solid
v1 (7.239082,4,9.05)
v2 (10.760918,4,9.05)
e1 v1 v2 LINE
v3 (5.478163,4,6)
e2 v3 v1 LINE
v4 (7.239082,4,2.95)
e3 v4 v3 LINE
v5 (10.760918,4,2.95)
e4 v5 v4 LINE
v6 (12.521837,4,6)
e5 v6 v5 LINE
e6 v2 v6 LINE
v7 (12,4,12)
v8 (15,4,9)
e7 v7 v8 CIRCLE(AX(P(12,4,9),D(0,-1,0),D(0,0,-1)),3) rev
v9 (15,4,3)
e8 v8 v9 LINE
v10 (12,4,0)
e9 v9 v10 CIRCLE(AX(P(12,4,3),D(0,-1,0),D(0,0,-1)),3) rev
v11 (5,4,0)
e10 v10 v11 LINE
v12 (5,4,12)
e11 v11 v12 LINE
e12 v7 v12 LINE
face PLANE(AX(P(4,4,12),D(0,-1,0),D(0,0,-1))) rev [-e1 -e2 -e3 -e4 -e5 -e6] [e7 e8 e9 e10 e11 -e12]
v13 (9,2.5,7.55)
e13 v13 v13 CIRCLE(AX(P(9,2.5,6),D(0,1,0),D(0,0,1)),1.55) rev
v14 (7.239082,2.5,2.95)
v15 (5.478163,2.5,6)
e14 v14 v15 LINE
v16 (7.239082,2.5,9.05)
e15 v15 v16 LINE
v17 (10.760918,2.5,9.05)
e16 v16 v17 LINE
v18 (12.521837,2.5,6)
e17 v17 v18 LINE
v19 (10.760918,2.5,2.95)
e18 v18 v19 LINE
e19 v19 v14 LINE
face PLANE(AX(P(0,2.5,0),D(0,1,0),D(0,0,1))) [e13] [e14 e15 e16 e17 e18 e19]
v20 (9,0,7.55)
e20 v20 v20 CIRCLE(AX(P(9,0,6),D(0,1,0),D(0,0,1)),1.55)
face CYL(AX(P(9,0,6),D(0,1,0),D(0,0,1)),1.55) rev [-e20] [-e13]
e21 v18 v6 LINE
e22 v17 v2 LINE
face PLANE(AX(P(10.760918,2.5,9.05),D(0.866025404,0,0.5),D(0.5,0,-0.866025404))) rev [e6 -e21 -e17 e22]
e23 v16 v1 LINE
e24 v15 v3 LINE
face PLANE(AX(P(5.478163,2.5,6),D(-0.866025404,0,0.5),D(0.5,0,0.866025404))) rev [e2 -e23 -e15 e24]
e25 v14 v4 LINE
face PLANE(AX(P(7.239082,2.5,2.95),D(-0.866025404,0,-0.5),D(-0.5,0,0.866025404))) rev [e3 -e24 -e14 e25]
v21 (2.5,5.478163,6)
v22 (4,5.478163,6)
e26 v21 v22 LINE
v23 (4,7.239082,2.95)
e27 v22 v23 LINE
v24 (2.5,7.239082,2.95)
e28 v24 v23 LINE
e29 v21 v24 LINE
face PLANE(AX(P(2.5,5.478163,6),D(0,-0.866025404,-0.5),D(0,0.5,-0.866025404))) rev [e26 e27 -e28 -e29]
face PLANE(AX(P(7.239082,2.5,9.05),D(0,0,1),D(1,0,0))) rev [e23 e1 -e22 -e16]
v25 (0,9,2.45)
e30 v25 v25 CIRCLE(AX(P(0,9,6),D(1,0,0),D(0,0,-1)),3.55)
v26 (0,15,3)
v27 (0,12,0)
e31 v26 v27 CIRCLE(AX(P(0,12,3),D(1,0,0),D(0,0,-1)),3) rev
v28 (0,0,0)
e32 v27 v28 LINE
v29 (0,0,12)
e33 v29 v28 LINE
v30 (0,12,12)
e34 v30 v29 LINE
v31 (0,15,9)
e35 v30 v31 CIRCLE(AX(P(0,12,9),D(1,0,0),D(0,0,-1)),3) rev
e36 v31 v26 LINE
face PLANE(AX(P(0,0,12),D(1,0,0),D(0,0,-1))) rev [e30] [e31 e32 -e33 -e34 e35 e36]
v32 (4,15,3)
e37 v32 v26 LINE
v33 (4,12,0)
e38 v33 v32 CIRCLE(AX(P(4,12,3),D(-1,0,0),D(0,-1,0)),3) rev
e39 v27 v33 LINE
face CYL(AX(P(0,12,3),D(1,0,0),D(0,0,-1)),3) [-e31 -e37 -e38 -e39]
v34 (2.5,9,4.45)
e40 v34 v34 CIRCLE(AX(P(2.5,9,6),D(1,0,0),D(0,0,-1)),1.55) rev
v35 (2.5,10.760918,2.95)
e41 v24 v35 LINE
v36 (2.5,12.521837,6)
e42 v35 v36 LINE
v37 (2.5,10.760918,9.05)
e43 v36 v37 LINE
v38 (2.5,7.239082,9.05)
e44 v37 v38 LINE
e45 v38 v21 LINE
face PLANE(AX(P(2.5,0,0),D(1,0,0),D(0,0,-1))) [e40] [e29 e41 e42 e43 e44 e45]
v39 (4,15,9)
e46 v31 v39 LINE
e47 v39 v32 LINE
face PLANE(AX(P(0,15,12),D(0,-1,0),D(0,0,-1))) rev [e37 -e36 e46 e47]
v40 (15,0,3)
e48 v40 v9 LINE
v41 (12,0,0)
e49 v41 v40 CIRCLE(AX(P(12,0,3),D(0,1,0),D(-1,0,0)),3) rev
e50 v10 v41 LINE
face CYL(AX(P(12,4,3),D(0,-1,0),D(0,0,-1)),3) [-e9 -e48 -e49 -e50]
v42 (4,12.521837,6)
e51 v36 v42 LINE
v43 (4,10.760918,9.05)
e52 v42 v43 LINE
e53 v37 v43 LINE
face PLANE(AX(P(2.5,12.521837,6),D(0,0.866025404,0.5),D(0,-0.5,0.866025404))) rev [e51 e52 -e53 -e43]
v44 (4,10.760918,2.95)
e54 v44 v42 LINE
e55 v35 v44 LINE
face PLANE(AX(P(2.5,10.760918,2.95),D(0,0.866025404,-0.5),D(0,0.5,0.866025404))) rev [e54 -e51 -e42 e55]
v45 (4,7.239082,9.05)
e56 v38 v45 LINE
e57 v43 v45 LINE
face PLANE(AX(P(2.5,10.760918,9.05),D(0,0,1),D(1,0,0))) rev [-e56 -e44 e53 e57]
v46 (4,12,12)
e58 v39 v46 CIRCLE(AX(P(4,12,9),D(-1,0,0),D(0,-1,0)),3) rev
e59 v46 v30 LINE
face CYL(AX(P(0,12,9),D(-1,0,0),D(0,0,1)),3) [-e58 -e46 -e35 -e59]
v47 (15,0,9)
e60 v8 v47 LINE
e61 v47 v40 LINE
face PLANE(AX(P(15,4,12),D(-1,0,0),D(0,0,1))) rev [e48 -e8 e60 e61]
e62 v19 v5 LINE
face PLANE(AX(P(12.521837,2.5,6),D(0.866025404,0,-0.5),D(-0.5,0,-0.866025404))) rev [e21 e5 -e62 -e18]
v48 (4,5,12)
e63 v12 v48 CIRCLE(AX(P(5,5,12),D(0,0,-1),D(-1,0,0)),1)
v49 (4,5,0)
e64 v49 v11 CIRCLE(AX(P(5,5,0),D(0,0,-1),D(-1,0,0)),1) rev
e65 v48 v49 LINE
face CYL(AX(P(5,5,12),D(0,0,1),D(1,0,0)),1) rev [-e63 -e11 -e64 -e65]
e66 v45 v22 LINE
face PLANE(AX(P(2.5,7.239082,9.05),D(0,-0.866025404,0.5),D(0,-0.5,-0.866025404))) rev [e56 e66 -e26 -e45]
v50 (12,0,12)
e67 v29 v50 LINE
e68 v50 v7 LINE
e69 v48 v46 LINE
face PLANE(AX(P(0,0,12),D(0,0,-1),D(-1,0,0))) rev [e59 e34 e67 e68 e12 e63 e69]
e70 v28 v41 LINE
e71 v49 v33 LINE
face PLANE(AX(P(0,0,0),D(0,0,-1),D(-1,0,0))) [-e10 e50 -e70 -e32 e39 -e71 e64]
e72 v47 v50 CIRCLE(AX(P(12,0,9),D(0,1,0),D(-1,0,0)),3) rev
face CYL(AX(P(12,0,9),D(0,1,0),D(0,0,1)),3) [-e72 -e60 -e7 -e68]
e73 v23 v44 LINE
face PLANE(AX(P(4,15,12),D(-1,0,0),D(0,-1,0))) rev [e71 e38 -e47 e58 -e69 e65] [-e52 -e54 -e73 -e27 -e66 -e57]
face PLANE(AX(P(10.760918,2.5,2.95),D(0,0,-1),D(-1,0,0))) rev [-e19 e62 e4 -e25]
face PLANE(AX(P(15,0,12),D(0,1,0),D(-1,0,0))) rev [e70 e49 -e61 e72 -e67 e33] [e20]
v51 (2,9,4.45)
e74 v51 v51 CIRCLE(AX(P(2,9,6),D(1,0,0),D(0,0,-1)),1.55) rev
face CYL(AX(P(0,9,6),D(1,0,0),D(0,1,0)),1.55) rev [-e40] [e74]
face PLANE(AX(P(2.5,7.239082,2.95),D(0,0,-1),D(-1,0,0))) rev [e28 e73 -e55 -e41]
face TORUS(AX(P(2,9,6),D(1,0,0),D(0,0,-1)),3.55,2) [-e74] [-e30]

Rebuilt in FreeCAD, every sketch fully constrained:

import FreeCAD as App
import Part
import Sketcher
from FreeCAD import Vector
Q = App.Units.Quantity


def edges_at(feature, points):
    """Names of the edges that pass closest to the given points."""
    edges = feature.Shape.Edges
    near = lambda p: min(range(len(edges)), key=lambda i: edges[i].distToShape(Part.Vertex(*p))[0])
    return sorted({f"Edge{near(p) + 1}" for p in points})


def add_polygon(sketch, points):
    """Adds a closed chain of lines whose ends are joined by coincident constraints."""
    first, n = sketch.GeometryCount, len(points)
    for a, b in zip(points, points[1:] + points[:1]):
        sketch.addGeometry(Part.LineSegment(App.Vector(*a, 0), App.Vector(*b, 0)), False)
    for i in range(n):
        sketch.addConstraint(Sketcher.Constraint("Coincident", first + i, 2, first + (i + 1) % n, 1))

doc = App.newDocument("Part")
params = doc.addObject("Spreadsheet::Sheet", "Params")
for row, (alias, value) in enumerate([
    ("sketch1_width", "15 mm"),
    ("sketch1_width2", "11 mm"),
    ("pad1_length", "12 mm"),
    ("sketch2_diameter", "3.1 mm"),
    ("pocket2_length", "1.5 mm"),
    ("sketch4_diameter", "3.1 mm"),
    ("pocket4_length", "1.5 mm"),
    ("fillet_radius", "2 mm"),
    ("fillet2_radius", "1 mm"),
    ("fillet3_radius", "3 mm"),
], start=1):
    params.set(f"A{row}", alias)
    params.set(f"B{row}", "=" + value)
    params.setAlias(f"B{row}", alias)

body = doc.addObject("PartDesign::Body", "Body")

sketch1 = body.newObject("Sketcher::SketchObject", "Sketch")
sketch1.AttachmentSupport = (doc.getObject("XY_Plane"), [""])
sketch1.MapMode = "FlatFace"
add_polygon(sketch1, [(0, 15), (0, 0), (15, 0), (15, 4), (4, 4), (4, 15)])
sketch1.addConstraint([
    Sketcher.Constraint("Vertical", 0),
    Sketcher.Constraint("Horizontal", 1),
    Sketcher.Constraint("Vertical", 2),
    Sketcher.Constraint("Horizontal", 3),
    Sketcher.Constraint("Vertical", 4),
    Sketcher.Constraint("Horizontal", 5),
    Sketcher.Constraint("Coincident", 0, 2, -1, 1),
    Sketcher.Constraint("Equal", 1, 0),
    Sketcher.Constraint("Equal", 5, 2),
    Sketcher.Constraint("DistanceX", 1, 1, 1, 2, 15.0),
    Sketcher.Constraint("DistanceX", 3, 2, 3, 1, 11.0),
])
sketch1.setExpression("Constraints[15]", "Params.sketch1_width")
sketch1.setExpression("Constraints[16]", "Params.sketch1_width2")
pad1 = body.newObject("PartDesign::Pad", "Pad")
pad1.Profile = sketch1
pad1.setExpression("Length", "Params.pad1_length")

sketch2 = body.newObject("Sketcher::SketchObject", "Sketch001")
sketch2.AttachmentSupport = (doc.getObject("XZ_Plane"), [""])
sketch2.MapMode = "FlatFace"
sketch2.AttachmentOffset = App.Placement(Vector(0, 0, -4), App.Rotation())
sketch2.addGeometry(Part.Circle(Vector(9, 6, 0), Vector(0, 0, 1), 1.6), False)
sketch2.addConstraint([
    Sketcher.Constraint("Diameter", 0, 3.1),
    Sketcher.Constraint("DistanceX", -1, 1, 0, 3, 9.0),
    Sketcher.Constraint("DistanceY", -1, 1, 0, 3, 6.0),
])
sketch2.setExpression("Constraints[0]", "Params.sketch2_diameter")
pocket1 = body.newObject("PartDesign::Pocket", "Pocket")
pocket1.Profile = sketch2
pocket1.Type = "ThroughAll"
pocket1.Reversed = True

sketch3 = body.newObject("Sketcher::SketchObject", "Sketch002")
sketch3.AttachmentSupport = (doc.getObject("XZ_Plane"), [""])
sketch3.MapMode = "FlatFace"
sketch3.AttachmentOffset = App.Placement(Vector(0, 0, -4), App.Rotation())
add_polygon(sketch3, [(5.5, 6), (7.2, 9.1), (10.8, 9.1), (12.5, 6), (10.8, 3), (7.2, 3)])
sketch3.addConstraint([
    Sketcher.Constraint("Horizontal", 1),
    Sketcher.Constraint("Horizontal", 4),
    Sketcher.Constraint("Parallel", 0, 3),
    Sketcher.Constraint("Parallel", 2, 5),
    Sketcher.Constraint("Horizontal", 2, 2, 5, 2),
    Sketcher.Constraint("Vertical", 1, 2, 3, 2),
    Sketcher.Constraint("Vertical", 0, 2, 4, 2),
    Sketcher.Constraint("Angle", 0, Q("60 deg")),
    Sketcher.Constraint("DistanceY", -1, 1, 2, 2, 6.0),
    Sketcher.Constraint("DistanceY", 3, 2, 1, 2, 6.1),
    Sketcher.Constraint("DistanceX", 1, 1, 1, 2, 3.521837),
    Sketcher.Constraint("DistanceX", -1, 1, 0, 2, 7.239082),
])
pocket2 = body.newObject("PartDesign::Pocket", "Pocket001")
pocket2.Profile = sketch3
pocket2.setExpression("Length", "Params.pocket2_length")
pocket2.Reversed = True

sketch4 = body.newObject("Sketcher::SketchObject", "Sketch003")
sketch4.AttachmentSupport = (doc.getObject("YZ_Plane"), [""])
sketch4.MapMode = "FlatFace"
sketch4.AttachmentOffset = App.Placement(Vector(0, 0, 4), App.Rotation())
sketch4.addGeometry(Part.Circle(Vector(9, 6, 0), Vector(0, 0, 1), 1.6), False)
sketch4.addConstraint([
    Sketcher.Constraint("Diameter", 0, 3.1),
    Sketcher.Constraint("DistanceX", -1, 1, 0, 3, 9.0),
    Sketcher.Constraint("DistanceY", -1, 1, 0, 3, 6.0),
])
sketch4.setExpression("Constraints[0]", "Params.sketch4_diameter")
pocket3 = body.newObject("PartDesign::Pocket", "Pocket002")
pocket3.Profile = sketch4
pocket3.Type = "ThroughAll"

sketch5 = body.newObject("Sketcher::SketchObject", "Sketch004")
sketch5.AttachmentSupport = (doc.getObject("YZ_Plane"), [""])
sketch5.MapMode = "FlatFace"
sketch5.AttachmentOffset = App.Placement(Vector(0, 0, 4), App.Rotation())
add_polygon(sketch5, [(5.5, 6), (7.2, 3), (10.8, 3), (12.5, 6), (10.8, 9.1), (7.2, 9.1)])
sketch5.addConstraint([
    Sketcher.Constraint("Horizontal", 1),
    Sketcher.Constraint("Horizontal", 4),
    Sketcher.Constraint("Parallel", 0, 3),
    Sketcher.Constraint("Parallel", 2, 5),
    Sketcher.Constraint("Horizontal", 2, 2, 5, 2),
    Sketcher.Constraint("Vertical", 1, 2, 3, 2),
    Sketcher.Constraint("Vertical", 0, 2, 4, 2),
    Sketcher.Constraint("Angle", 0, Q("-60 deg")),
    Sketcher.Constraint("DistanceY", -1, 1, 2, 2, 6.0),
    Sketcher.Constraint("DistanceY", 1, 2, 3, 2, 6.1),
    Sketcher.Constraint("DistanceX", 1, 1, 1, 2, 3.521837),
    Sketcher.Constraint("DistanceX", -1, 1, 0, 2, 7.239082),
])
pocket4 = body.newObject("PartDesign::Pocket", "Pocket003")
pocket4.Profile = sketch5
pocket4.setExpression("Length", "Params.pocket4_length")
doc.recompute()

fillet = body.newObject("PartDesign::Fillet", "Fillet")
fillet.Base = (pocket4, edges_at(pocket4, [(0, 7.45, 6)]))
fillet.setExpression("Radius", "Params.fillet_radius")
doc.recompute()

fillet2 = body.newObject("PartDesign::Fillet", "Fillet001")
fillet2.Base = (fillet, edges_at(fillet, [(4, 4, 6)]))
fillet2.setExpression("Radius", "Params.fillet2_radius")
doc.recompute()

fillet3 = body.newObject("PartDesign::Fillet", "Fillet002")
fillet3.Base = (fillet2, edges_at(fillet2, [
    (2, 15, 12),
    (2, 15, 0),
    (15, 2, 12),
    (15, 2, 0),
]))
fillet3.setExpression("Radius", "Params.fillet3_radius")

doc.recompute()
